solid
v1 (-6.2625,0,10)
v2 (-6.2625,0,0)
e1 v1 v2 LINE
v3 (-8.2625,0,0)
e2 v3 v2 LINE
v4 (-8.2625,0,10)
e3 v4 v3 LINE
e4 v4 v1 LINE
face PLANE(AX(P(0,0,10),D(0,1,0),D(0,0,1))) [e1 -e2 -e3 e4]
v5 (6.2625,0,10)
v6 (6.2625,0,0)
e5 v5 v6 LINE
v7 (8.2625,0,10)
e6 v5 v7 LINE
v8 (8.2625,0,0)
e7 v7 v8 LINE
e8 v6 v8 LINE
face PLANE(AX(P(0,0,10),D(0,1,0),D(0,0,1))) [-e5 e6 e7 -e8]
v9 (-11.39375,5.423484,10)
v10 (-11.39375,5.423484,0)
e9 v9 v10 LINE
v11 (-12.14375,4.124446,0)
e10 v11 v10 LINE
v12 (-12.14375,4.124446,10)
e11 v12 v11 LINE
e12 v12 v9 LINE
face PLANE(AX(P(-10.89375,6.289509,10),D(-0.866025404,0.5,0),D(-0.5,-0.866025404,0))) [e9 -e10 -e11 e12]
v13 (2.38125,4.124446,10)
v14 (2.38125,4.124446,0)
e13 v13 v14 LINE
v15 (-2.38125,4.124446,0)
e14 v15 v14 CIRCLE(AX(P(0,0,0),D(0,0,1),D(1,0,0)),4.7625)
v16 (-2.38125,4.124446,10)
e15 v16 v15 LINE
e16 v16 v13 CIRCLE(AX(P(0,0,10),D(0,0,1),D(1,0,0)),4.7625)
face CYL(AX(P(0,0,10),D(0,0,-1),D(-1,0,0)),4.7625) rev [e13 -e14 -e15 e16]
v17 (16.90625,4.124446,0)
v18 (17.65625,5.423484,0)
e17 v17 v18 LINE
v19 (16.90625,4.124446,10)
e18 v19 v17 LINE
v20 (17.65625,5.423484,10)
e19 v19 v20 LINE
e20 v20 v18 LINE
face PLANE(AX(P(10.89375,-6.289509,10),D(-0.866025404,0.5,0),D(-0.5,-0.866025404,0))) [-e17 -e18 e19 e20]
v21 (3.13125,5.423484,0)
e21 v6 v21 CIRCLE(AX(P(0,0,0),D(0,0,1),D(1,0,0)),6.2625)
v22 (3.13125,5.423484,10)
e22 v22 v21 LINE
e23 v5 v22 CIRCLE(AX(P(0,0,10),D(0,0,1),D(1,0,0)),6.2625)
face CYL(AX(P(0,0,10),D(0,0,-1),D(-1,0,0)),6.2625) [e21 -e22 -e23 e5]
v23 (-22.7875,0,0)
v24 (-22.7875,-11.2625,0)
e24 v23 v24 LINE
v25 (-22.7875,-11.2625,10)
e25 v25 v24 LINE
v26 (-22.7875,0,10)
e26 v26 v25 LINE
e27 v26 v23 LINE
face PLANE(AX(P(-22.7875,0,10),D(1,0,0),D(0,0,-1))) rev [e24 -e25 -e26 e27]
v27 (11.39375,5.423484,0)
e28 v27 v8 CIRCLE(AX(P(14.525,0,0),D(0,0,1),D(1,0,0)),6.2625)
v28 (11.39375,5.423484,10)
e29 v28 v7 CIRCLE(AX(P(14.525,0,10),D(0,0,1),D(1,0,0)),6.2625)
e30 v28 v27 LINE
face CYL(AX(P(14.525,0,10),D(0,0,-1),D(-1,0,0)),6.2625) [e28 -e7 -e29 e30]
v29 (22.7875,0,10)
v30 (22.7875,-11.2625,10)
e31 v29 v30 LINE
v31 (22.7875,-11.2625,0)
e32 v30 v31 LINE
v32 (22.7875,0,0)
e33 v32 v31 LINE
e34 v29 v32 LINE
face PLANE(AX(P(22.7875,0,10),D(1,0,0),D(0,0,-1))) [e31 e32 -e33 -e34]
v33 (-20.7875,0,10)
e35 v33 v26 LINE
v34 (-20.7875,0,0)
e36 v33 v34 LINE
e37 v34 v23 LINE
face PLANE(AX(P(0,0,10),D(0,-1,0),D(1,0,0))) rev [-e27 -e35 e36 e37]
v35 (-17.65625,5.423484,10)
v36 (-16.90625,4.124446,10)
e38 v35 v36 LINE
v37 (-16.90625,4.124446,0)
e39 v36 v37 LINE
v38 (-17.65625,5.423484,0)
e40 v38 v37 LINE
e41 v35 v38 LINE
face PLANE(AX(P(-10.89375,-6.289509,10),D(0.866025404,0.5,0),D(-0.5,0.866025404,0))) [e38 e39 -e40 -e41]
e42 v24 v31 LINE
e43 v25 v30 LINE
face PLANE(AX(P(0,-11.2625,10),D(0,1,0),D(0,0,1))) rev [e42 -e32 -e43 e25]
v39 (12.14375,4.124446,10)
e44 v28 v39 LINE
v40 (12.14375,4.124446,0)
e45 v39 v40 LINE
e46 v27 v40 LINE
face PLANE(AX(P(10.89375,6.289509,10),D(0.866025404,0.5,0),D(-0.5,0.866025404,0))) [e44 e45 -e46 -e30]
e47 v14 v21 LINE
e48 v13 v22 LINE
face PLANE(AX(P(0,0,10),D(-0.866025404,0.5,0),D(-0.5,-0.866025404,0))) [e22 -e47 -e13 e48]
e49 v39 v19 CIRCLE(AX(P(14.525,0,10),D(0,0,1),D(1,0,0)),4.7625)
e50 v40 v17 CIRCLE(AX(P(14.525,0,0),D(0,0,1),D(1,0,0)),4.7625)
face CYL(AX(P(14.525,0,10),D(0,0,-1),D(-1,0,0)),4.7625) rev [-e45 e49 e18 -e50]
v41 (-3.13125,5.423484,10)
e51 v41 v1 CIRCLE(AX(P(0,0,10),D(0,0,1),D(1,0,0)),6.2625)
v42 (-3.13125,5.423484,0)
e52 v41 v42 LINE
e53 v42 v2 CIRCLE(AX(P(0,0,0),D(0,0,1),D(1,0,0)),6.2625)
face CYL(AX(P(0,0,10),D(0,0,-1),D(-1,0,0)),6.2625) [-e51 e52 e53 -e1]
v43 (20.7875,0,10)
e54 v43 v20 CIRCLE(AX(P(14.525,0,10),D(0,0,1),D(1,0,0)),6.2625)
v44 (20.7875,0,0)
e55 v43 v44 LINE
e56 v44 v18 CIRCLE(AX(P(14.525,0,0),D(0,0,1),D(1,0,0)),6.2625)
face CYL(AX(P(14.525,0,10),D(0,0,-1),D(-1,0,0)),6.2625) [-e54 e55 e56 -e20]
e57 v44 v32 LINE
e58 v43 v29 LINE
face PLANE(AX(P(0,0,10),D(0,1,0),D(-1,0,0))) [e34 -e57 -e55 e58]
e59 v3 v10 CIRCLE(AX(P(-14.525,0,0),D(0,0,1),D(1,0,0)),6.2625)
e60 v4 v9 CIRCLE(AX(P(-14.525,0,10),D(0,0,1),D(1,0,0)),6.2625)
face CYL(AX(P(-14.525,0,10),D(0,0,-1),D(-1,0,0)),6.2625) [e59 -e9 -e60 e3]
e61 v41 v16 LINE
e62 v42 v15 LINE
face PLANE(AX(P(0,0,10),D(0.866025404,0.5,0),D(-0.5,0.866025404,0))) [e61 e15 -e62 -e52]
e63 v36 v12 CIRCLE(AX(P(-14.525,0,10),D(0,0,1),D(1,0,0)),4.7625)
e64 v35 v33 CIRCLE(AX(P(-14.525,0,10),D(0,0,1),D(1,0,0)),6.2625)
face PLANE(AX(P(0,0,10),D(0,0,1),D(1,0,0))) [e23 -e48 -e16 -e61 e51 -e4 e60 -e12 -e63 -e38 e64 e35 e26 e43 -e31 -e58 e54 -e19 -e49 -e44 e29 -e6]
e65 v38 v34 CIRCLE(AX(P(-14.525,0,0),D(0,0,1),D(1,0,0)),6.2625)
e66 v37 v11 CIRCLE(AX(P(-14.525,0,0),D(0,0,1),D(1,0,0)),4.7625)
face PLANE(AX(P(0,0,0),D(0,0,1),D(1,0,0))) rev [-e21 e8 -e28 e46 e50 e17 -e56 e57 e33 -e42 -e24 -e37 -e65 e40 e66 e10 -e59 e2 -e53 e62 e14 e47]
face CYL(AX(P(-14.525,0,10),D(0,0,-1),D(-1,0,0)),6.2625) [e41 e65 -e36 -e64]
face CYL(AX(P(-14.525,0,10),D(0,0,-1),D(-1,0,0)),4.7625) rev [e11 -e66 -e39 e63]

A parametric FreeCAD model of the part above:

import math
import FreeCAD as App
import Part
import Sketcher
Q = App.Units.Quantity

doc = App.newDocument("Part")
body = doc.addObject("PartDesign::Body", "Body")

# Sketch on XY plane
sketch1 = body.newObject("Sketcher::SketchObject", "Sketch")
sketch1.AttachmentSupport = (doc.getObject("XY_Plane"), [""])
sketch1.MapMode = "FlatFace"
sketch1.addGeometry(Part.LineSegment(App.Vector(-20.7875, 0, 0), App.Vector(-22.7875, 0, 0)), False)
sketch1.addGeometry(Part.LineSegment(App.Vector(-22.7875, 0, 0), App.Vector(-22.7875, -11.2625, 0)), False)
sketch1.addGeometry(Part.LineSegment(App.Vector(-22.7875, -11.2625, 0), App.Vector(22.7875, -11.2625, 0)), False)
sketch1.addGeometry(Part.LineSegment(App.Vector(22.7875, -11.2625, 0), App.Vector(22.7875, 0, 0)), False)
sketch1.addGeometry(Part.LineSegment(App.Vector(22.7875, 0, 0), App.Vector(20.7875, 0, 0)), False)
sketch1.addGeometry(Part.ArcOfCircle(Part.Circle(App.Vector(14.525, 0, 0), App.Vector(0, 0, 1), 6.2625), math.radians(0), math.radians(60)), False)
sketch1.addGeometry(Part.LineSegment(App.Vector(17.65625, 5.423484, 0), App.Vector(16.90625, 4.124446, 0)), False)
sketch1.addGeometry(Part.ArcOfCircle(Part.Circle(App.Vector(14.525, 0, 0), App.Vector(0, 0, 1), 4.7625), math.radians(120), math.radians(420)), False)
sketch1.addGeometry(Part.LineSegment(App.Vector(12.14375, 4.124446, 0), App.Vector(11.39375, 5.423484, 0)), False)
sketch1.addGeometry(Part.ArcOfCircle(Part.Circle(App.Vector(14.525, 0, 0), App.Vector(0, 0, 1), 6.2625), math.radians(120), math.radians(180)), False)
sketch1.addGeometry(Part.LineSegment(App.Vector(8.2625, 0, 0), App.Vector(6.2625, 0, 0)), False)
sketch1.addGeometry(Part.ArcOfCircle(Part.Circle(App.Vector(0, 0, 0), App.Vector(0, 0, 1), 6.2625), math.radians(0), math.radians(60)), False)
sketch1.addGeometry(Part.LineSegment(App.Vector(3.13125, 5.423484, 0), App.Vector(2.38125, 4.124446, 0)), False)
sketch1.addGeometry(Part.ArcOfCircle(Part.Circle(App.Vector(0, 0, 0), App.Vector(0, 0, 1), 4.7625), math.radians(120), math.radians(420)), False)
sketch1.addGeometry(Part.LineSegment(App.Vector(-2.38125, 4.124446, 0), App.Vector(-3.13125, 5.423484, 0)), False)
sketch1.addGeometry(Part.ArcOfCircle(Part.Circle(App.Vector(0, 0, 0), App.Vector(0, 0, 1), 6.2625), math.radians(120), math.radians(180)), False)
sketch1.addGeometry(Part.LineSegment(App.Vector(-6.2625, 0, 0), App.Vector(-8.2625, 0, 0)), False)
sketch1.addGeometry(Part.ArcOfCircle(Part.Circle(App.Vector(-14.525, 0, 0), App.Vector(0, 0, 1), 6.2625), math.radians(0), math.radians(60)), False)
sketch1.addGeometry(Part.LineSegment(App.Vector(-11.39375, 5.423484, 0), App.Vector(-12.14375, 4.124446, 0)), False)
sketch1.addGeometry(Part.ArcOfCircle(Part.Circle(App.Vector(-14.525, 0, 0), App.Vector(0, 0, 1), 4.7625), math.radians(120), math.radians(420)), False)
sketch1.addGeometry(Part.LineSegment(App.Vector(-16.90625, 4.124446, 0), App.Vector(-17.65625, 5.423484, 0)), False)
sketch1.addGeometry(Part.ArcOfCircle(Part.Circle(App.Vector(-14.525, 0, 0), App.Vector(0, 0, 1), 6.2625), math.radians(120), math.radians(180)), False)
sketch1.addConstraint(Sketcher.Constraint("Coincident", 0, 2, 1, 1))
sketch1.addConstraint(Sketcher.Constraint("Coincident", 1, 2, 2, 1))
sketch1.addConstraint(Sketcher.Constraint("Coincident", 2, 2, 3, 1))
sketch1.addConstraint(Sketcher.Constraint("Coincident", 3, 2, 4, 1))
sketch1.addConstraint(Sketcher.Constraint("Coincident", 4, 2, 5, 1))
sketch1.addConstraint(Sketcher.Constraint("Coincident", 5, 2, 6, 1))
sketch1.addConstraint(Sketcher.Constraint("Coincident", 6, 2, 7, 2))
sketch1.addConstraint(Sketcher.Constraint("Coincident", 7, 1, 8, 1))
sketch1.addConstraint(Sketcher.Constraint("Coincident", 8, 2, 9, 1))
sketch1.addConstraint(Sketcher.Constraint("Coincident", 9, 2, 10, 1))
sketch1.addConstraint(Sketcher.Constraint("Coincident", 10, 2, 11, 1))
sketch1.addConstraint(Sketcher.Constraint("Coincident", 11, 2, 12, 1))
sketch1.addConstraint(Sketcher.Constraint("Coincident", 12, 2, 13, 2))
sketch1.addConstraint(Sketcher.Constraint("Coincident", 13, 1, 14, 1))
sketch1.addConstraint(Sketcher.Constraint("Coincident", 14, 2, 15, 1))
sketch1.addConstraint(Sketcher.Constraint("Coincident", 15, 2, 16, 1))
sketch1.addConstraint(Sketcher.Constraint("Coincident", 16, 2, 17, 1))
sketch1.addConstraint(Sketcher.Constraint("Coincident", 17, 2, 18, 1))
sketch1.addConstraint(Sketcher.Constraint("Coincident", 18, 2, 19, 2))
sketch1.addConstraint(Sketcher.Constraint("Coincident", 19, 1, 20, 1))
sketch1.addConstraint(Sketcher.Constraint("Coincident", 20, 2, 21, 1))
sketch1.addConstraint(Sketcher.Constraint("Coincident", 21, 2, 0, 1))
sketch1.addConstraint(Sketcher.Constraint("Horizontal", 0))
sketch1.addConstraint(Sketcher.Constraint("Vertical", 1))
sketch1.addConstraint(Sketcher.Constraint("Horizontal", 2))
sketch1.addConstraint(Sketcher.Constraint("Vertical", 3))
sketch1.addConstraint(Sketcher.Constraint("Horizontal", 4))
sketch1.addConstraint(Sketcher.Constraint("Horizontal", 10))
sketch1.addConstraint(Sketcher.Constraint("Horizontal", 16))
sketch1.addConstraint(Sketcher.Constraint("Coincident", 11, 3, -1, 1))
sketch1.addConstraint(Sketcher.Constraint("Coincident", 13, 3, -1, 1))
sketch1.addConstraint(Sketcher.Constraint("Coincident", 15, 3, -1, 1))
sketch1.addConstraint(Sketcher.Constraint("Coincident", 7, 3, 5, 3))
sketch1.addConstraint(Sketcher.Constraint("Coincident", 9, 3, 5, 3))
sketch1.addConstraint(Sketcher.Constraint("Coincident", 19, 3, 17, 3))
sketch1.addConstraint(Sketcher.Constraint("Coincident", 21, 3, 17, 3))
sketch1.addConstraint(Sketcher.Constraint("Equal", 5, 9))
sketch1.addConstraint(Sketcher.Constraint("Equal", 9, 11))
sketch1.addConstraint(Sketcher.Constraint("Equal", 7, 13))
sketch1.addConstraint(Sketcher.Constraint("Equal", 11, 15))
sketch1.addConstraint(Sketcher.Constraint("Equal", 15, 17))
sketch1.addConstraint(Sketcher.Constraint("Equal", 13, 19))
sketch1.addConstraint(Sketcher.Constraint("Equal", 17, 21))
sketch1.addConstraint(Sketcher.Constraint("Symmetric", 5, 3, 17, 3, -1, 1))
sketch1.addConstraint(Sketcher.Constraint("Symmetric", 0, 2, 3, 2, -1, 1))
sketch1.addConstraint(Sketcher.Constraint("Symmetric", 8, 2, 17, 2, -2))
sketch1.addConstraint(Sketcher.Constraint("PointOnObject", 0, 2, -1))
sketch1.addConstraint(Sketcher.Constraint("PointOnObject", 9, 2, -1))
sketch1.addConstraint(Sketcher.Constraint("PointOnObject", 15, 2, -1))
sketch1.addConstraint(Sketcher.Constraint("Parallel", 6, 12))
sketch1.addConstraint(Sketcher.Constraint("Parallel", 8, 14))
sketch1.addConstraint(Sketcher.Constraint("Parallel", 12, 18))
sketch1.addConstraint(Sketcher.Constraint("Parallel", 14, 20))
sketch1.addConstraint(Sketcher.Constraint("Horizontal", 6, 2, 7, 1))
sketch1.addConstraint(Sketcher.Constraint("Horizontal", 5, 2, 8, 2))
sketch1.addConstraint(Sketcher.Constraint("Horizontal", 8, 2, 11, 2))
sketch1.addConstraint(Sketcher.Constraint("Horizontal", 12, 2, 13, 1))
sketch1.addConstraint(Sketcher.Constraint("Horizontal", 18, 2, 19, 1))
sketch1.addConstraint(Sketcher.Constraint("Equal", 4, 10))
sketch1.addConstraint(Sketcher.Constraint("DistanceX", 0, 2, 0, 1, Q("2 mm")))
sketch1.addConstraint(Sketcher.Constraint("Angle", 6, Q("-120 deg")))
sketch1.addConstraint(Sketcher.Constraint("Distance", 6, Q("1.5 mm")))
sketch1.addConstraint(Sketcher.Constraint("Radius", 5, Q("6.2625 mm")))
sketch1.addConstraint(Sketcher.Constraint("DistanceY", 1, 2, 1, 1, Q("11.2625 mm")))
sketch1.addConstraint(Sketcher.Constraint("DistanceX", 7, 1, 6, 2, Q("4.7625 mm")))
pad1 = body.newObject("PartDesign::Pad", "Pad")
pad1.Profile = sketch1
pad1.Length = 10

doc.recompute()
